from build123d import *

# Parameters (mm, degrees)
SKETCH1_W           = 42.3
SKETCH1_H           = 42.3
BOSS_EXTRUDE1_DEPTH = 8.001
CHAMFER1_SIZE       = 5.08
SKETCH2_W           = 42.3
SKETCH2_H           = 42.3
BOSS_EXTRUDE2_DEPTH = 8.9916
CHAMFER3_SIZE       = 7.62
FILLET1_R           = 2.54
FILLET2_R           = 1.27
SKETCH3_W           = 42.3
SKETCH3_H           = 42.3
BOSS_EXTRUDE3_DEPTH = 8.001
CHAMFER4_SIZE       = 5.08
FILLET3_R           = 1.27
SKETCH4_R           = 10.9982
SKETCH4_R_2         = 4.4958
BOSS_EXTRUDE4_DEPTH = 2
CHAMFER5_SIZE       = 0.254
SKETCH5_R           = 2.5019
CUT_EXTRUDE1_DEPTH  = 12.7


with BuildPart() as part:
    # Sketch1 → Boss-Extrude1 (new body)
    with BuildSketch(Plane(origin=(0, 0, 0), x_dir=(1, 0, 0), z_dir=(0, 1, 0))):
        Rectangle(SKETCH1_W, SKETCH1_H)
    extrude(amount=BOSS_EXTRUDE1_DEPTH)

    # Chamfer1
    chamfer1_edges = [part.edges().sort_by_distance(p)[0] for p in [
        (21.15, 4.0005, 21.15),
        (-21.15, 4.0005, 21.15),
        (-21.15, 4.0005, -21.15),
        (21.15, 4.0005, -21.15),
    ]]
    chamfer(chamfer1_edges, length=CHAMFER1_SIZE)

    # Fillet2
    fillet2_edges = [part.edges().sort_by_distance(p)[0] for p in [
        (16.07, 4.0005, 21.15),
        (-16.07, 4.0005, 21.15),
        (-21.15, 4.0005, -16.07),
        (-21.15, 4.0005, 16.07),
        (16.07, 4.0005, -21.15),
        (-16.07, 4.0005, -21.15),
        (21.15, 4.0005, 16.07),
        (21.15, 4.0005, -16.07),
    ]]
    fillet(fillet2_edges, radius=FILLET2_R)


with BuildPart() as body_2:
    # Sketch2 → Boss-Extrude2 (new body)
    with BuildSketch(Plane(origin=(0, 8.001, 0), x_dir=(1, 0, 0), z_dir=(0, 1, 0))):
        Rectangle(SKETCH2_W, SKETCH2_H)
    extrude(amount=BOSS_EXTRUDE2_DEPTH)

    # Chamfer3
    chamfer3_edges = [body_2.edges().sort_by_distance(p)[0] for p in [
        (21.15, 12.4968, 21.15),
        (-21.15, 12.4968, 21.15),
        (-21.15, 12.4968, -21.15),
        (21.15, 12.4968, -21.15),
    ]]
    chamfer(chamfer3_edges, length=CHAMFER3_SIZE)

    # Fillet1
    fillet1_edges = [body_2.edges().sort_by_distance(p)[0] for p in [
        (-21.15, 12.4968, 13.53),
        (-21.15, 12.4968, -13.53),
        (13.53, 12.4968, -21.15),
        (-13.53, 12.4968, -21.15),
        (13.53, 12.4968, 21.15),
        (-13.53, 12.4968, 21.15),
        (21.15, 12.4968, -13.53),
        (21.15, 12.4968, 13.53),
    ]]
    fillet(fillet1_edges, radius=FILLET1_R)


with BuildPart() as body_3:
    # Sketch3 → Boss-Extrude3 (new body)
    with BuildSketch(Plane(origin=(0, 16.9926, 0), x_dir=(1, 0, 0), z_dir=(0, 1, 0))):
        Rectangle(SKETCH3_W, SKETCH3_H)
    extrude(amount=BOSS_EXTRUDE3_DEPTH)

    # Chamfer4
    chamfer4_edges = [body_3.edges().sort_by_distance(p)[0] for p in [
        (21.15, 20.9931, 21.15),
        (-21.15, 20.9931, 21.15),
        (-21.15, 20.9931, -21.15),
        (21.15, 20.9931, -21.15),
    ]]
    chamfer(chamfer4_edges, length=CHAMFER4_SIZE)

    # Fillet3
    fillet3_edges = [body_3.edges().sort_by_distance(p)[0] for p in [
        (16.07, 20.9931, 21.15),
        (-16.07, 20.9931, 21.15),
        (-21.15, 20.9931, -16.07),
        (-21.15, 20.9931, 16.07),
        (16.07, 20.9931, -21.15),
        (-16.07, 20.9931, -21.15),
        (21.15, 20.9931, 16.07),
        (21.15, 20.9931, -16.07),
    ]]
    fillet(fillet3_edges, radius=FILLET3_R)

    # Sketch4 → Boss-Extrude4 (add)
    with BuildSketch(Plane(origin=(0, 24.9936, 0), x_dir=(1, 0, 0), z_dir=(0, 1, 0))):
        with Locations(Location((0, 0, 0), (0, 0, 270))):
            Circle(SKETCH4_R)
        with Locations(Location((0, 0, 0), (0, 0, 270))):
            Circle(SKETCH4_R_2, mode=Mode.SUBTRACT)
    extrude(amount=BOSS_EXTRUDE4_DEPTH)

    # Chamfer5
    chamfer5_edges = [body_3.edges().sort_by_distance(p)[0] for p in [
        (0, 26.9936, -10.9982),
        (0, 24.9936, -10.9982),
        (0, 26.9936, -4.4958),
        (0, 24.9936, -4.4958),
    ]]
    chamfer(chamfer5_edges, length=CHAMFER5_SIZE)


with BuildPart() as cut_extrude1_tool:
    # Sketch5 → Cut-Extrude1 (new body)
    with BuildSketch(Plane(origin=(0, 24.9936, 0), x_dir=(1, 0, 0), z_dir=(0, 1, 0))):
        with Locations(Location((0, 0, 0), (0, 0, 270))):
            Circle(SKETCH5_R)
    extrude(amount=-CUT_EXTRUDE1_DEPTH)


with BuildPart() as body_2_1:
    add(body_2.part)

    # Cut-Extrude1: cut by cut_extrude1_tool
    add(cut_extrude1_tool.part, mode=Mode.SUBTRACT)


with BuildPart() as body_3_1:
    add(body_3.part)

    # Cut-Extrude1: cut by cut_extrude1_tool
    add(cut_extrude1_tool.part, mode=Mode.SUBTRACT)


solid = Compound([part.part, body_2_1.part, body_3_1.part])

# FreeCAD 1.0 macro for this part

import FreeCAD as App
import Part
import Sketcher
Q = App.Units.Quantity


def edges_at(feature, points):
    """Names of the edges that pass closest to the given points."""
    edges = feature.Shape.Edges
    near = lambda p: min(range(len(edges)), key=lambda i: edges[i].distToShape(Part.Vertex(*p))[0])
    return sorted({f"Edge{near(p) + 1}" for p in points})


def add_polygon(sketch, points):
    """Adds a closed chain of lines whose ends are joined by coincident constraints."""
    first, n = sketch.GeometryCount, len(points)
    for a, b in zip(points, points[1:] + points[:1]):
        sketch.addGeometry(Part.LineSegment(App.Vector(*a, 0), App.Vector(*b, 0)), False)
    for i in range(n):
        sketch.addConstraint(Sketcher.Constraint("Coincident", first + i, 2, first + (i + 1) % n, 1))

doc = App.newDocument("Part")
body = doc.addObject("PartDesign::Body", "Body")

# Sketch on XZ plane
sketch1 = body.newObject("Sketcher::SketchObject", "Sketch")
sketch1.AttachmentSupport = (doc.getObject("XZ_Plane"), [""])
sketch1.MapMode = "FlatFace"
add_polygon(sketch1, [(-21.15, -21.15), (-21.15, 21.15), (21.15, 21.15), (21.15, -21.15)])  # lines 0-3
sketch1.addConstraint([
    Sketcher.Constraint("Vertical", 0),
    Sketcher.Constraint("Horizontal", 1),
    Sketcher.Constraint("Vertical", 2),
    Sketcher.Constraint("Horizontal", 3),
    Sketcher.Constraint("Symmetric", 0, 2, 2, 2, -1, 1),
    Sketcher.Constraint("Equal", 3, 0),
    Sketcher.Constraint("DistanceX", 1, 1, 1, 2, 42.3),
])
pad1 = body.newObject("PartDesign::Pad", "Pad")
pad1.Profile = sketch1
pad1.Length = Q("0.315 in")
pad1.Reversed = True
doc.recompute()

chamfer = body.newObject("PartDesign::Chamfer", "Chamfer")
chamfer.Base = (pad1, edges_at(pad1, [
    (21.15, 4, 21.15),
    (-21.15, 4, 21.15),
    (-21.15, 4, -21.15),
    (21.15, 4, -21.15),
]))
chamfer.Size = Q("0.2 in")
doc.recompute()

fillet = body.newObject("PartDesign::Fillet", "Fillet")
fillet.Base = (chamfer, edges_at(chamfer, [
    (16.07, 4, 21.15),
    (-16.07, 4, 21.15),
    (-21.15, 4, -16.07),
    (-21.15, 4, 16.07),
    (16.07, 4, -21.15),
    (-16.07, 4, -21.15),
    (21.15, 4, 16.07),
    (21.15, 4, -16.07),
]))
fillet.Radius = Q("0.05 in")
body2 = doc.addObject("PartDesign::Body", "Body001")

# Sketch on XZ plane
sketch2 = body2.newObject("Sketcher::SketchObject", "Sketch001")
sketch2.AttachmentSupport = (doc.getObject("XZ_Plane001"), [""])
sketch2.MapMode = "FlatFace"
sketch2.AttachmentOffset = App.Placement(App.Vector(0, 0, -0.315 * 25.4), App.Rotation())
add_polygon(sketch2, [(-21.15, -21.15), (-21.15, 21.15), (21.15, 21.15), (21.15, -21.15)])  # lines 0-3
sketch2.addConstraint([
    Sketcher.Constraint("Vertical", 0),
    Sketcher.Constraint("Horizontal", 1),
    Sketcher.Constraint("Vertical", 2),
    Sketcher.Constraint("Horizontal", 3),
    Sketcher.Constraint("Symmetric", 0, 2, 2, 2, -1, 1),
    Sketcher.Constraint("Equal", 3, 0),
    Sketcher.Constraint("DistanceX", 1, 1, 1, 2, 42.3),
])
pad2 = body2.newObject("PartDesign::Pad", "Pad001")
pad2.Profile = sketch2
pad2.Length = Q("0.354 in")
pad2.Reversed = True
doc.recompute()

chamfer2 = body2.newObject("PartDesign::Chamfer", "Chamfer001")
chamfer2.Base = (pad2, edges_at(pad2, [
    (21.15, 12.497, 21.15),
    (-21.15, 12.497, 21.15),
    (-21.15, 12.497, -21.15),
    (21.15, 12.497, -21.15),
]))
chamfer2.Size = Q("0.3 in")
doc.recompute()

fillet2 = body2.newObject("PartDesign::Fillet", "Fillet001")
fillet2.Base = (chamfer2, edges_at(chamfer2, [
    (-21.15, 12.497, 13.53),
    (-21.15, 12.497, -13.53),
    (13.53, 12.497, -21.15),
    (-13.53, 12.497, -21.15),
    (13.53, 12.497, 21.15),
    (-13.53, 12.497, 21.15),
    (21.15, 12.497, -13.53),
    (21.15, 12.497, 13.53),
]))
fillet2.Radius = Q("0.1 in")
body3 = doc.addObject("PartDesign::Body", "Body002")

# Sketch on XZ plane
sketch3 = body3.newObject("Sketcher::SketchObject", "Sketch002")
sketch3.AttachmentSupport = (doc.getObject("XZ_Plane002"), [""])
sketch3.MapMode = "FlatFace"
sketch3.AttachmentOffset = App.Placement(App.Vector(0, 0, -0.669 * 25.4), App.Rotation())
add_polygon(sketch3, [(-21.15, -21.15), (-21.15, 21.15), (21.15, 21.15), (21.15, -21.15)])  # lines 0-3
sketch3.addConstraint([
    Sketcher.Constraint("Vertical", 0),
    Sketcher.Constraint("Horizontal", 1),
    Sketcher.Constraint("Vertical", 2),
    Sketcher.Constraint("Horizontal", 3),
    Sketcher.Constraint("Symmetric", 0, 2, 2, 2, -1, 1),
    Sketcher.Constraint("Equal", 3, 0),
    Sketcher.Constraint("DistanceX", 1, 1, 1, 2, 42.3),
])
pad3 = body3.newObject("PartDesign::Pad", "Pad002")
pad3.Profile = sketch3
pad3.Length = Q("0.315 in")
pad3.Reversed = True
doc.recompute()

chamfer3 = body3.newObject("PartDesign::Chamfer", "Chamfer002")
chamfer3.Base = (pad3, edges_at(pad3, [
    (21.15, 20.993, 21.15),
    (-21.15, 20.993, 21.15),
    (-21.15, 20.993, -21.15),
    (21.15, 20.993, -21.15),
]))
chamfer3.Size = Q("0.2 in")
doc.recompute()

fillet3 = body3.newObject("PartDesign::Fillet", "Fillet002")
fillet3.Base = (chamfer3, edges_at(chamfer3, [
    (16.07, 20.993, 21.15),
    (-16.07, 20.993, 21.15),
    (-21.15, 20.993, -16.07),
    (-21.15, 20.993, 16.07),
    (16.07, 20.993, -21.15),
    (-16.07, 20.993, -21.15),
    (21.15, 20.993, 16.07),
    (21.15, 20.993, -16.07),
]))
fillet3.Radius = Q("0.05 in")

# Sketch on XZ plane
sketch4 = body3.newObject("Sketcher::SketchObject", "Sketch003")
sketch4.AttachmentSupport = (doc.getObject("XZ_Plane002"), [""])
sketch4.MapMode = "FlatFace"
sketch4.AttachmentOffset = App.Placement(App.Vector(0, 0, -0.984 * 25.4), App.Rotation())
sketch4.addGeometry([
    Part.Circle(App.Vector(0, 0, 0), App.Vector(0, 0, 1), 10.9982),
    Part.Circle(App.Vector(0, 0, 0), App.Vector(0, 0, 1), 4.4958),
], False)
sketch4.addConstraint([
    Sketcher.Constraint("Coincident", 0, 3, -1, 1),
    Sketcher.Constraint("Coincident", 1, 3, -1, 1),
    Sketcher.Constraint("Diameter", 0, Q("0.866 in")),
    Sketcher.Constraint("Diameter", 1, Q("0.354 in")),
])
pad4 = body3.newObject("PartDesign::Pad", "Pad003")
pad4.Profile = sketch4
pad4.Length = 2
pad4.Reversed = True
doc.recompute()

chamfer4 = body3.newObject("PartDesign::Chamfer", "Chamfer003")
chamfer4.Base = (pad4, edges_at(pad4, [
    (0, 26.994, -10.998),
    (0, 24.994, -10.998),
    (0, 26.994, -4.496),
    (0, 24.994, -4.496),
]))
chamfer4.Size = Q("0.01 in")
body4 = doc.addObject("PartDesign::Body", "Body003")

# Sketch on XZ plane
sketch5 = body4.newObject("Sketcher::SketchObject", "Sketch004")
sketch5.AttachmentSupport = (doc.getObject("XZ_Plane003"), [""])
sketch5.MapMode = "FlatFace"
sketch5.AttachmentOffset = App.Placement(App.Vector(0, 0, -0.984 * 25.4), App.Rotation())
sketch5.addGeometry(Part.Circle(App.Vector(0, 0, 0), App.Vector(0, 0, 1), 2.5019), False)
sketch5.addConstraint([
    Sketcher.Constraint("Coincident", 0, 3, -1, 1),
    Sketcher.Constraint("Diameter", 0, Q("0.197 in")),
])
pad5 = body4.newObject("PartDesign::Pad", "Pad004")
pad5.Profile = sketch5
pad5.Length = Q("0.5 in")
doc.recompute()

body5 = doc.addObject("PartDesign::Body", "Body004")
body5.BaseFeature = body4
boolean = body2.newObject("PartDesign::Boolean", "Boolean")
boolean.Type = "Cut"
boolean.addObjects([body5])
doc.recompute()

boolean2 = body3.newObject("PartDesign::Boolean", "Boolean001")
boolean2.Type = "Cut"
boolean2.addObjects([body4])

doc.recompute()
